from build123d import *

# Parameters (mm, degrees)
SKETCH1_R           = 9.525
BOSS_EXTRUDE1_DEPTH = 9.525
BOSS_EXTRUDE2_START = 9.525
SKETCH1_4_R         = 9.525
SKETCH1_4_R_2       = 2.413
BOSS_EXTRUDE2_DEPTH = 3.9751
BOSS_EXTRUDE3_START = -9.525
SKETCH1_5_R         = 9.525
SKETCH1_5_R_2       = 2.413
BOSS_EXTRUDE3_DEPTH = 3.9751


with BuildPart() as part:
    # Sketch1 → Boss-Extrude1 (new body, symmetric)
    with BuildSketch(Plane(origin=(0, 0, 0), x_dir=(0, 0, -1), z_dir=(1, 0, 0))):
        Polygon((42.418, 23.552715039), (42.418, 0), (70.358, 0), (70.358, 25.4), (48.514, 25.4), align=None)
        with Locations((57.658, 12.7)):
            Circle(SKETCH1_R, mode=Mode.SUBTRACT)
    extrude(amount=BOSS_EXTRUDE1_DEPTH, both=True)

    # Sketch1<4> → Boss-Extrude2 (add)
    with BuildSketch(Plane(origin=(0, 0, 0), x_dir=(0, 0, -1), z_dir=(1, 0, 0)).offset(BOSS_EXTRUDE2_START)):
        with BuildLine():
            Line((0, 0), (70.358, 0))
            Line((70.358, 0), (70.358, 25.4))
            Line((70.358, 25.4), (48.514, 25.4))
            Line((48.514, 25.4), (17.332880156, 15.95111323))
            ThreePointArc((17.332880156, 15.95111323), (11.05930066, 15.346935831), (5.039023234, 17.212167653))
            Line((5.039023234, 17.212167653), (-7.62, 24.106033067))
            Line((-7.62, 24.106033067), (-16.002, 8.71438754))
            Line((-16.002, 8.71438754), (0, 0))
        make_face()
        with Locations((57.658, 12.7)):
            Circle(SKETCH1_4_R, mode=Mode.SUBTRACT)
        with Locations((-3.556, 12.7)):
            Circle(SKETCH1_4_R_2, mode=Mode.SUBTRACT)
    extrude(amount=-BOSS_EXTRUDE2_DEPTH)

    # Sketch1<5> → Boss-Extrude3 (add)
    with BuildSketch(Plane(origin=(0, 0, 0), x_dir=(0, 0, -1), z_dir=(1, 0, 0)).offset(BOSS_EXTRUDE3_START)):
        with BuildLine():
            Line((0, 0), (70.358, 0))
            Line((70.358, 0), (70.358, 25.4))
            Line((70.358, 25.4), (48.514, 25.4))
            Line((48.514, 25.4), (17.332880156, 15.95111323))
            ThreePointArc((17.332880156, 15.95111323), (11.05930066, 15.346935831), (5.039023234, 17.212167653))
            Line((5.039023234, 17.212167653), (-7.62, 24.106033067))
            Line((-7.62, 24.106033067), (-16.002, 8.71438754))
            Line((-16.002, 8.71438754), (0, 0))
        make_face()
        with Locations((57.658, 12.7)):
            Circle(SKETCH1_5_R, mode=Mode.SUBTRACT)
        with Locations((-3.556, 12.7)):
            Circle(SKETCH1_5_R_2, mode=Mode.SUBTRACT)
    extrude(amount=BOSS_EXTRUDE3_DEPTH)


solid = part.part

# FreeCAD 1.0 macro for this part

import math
import FreeCAD as App
import Part
import Sketcher
Q = App.Units.Quantity


def add_polygon(sketch, points):
    """Adds a closed chain of lines whose ends are joined by coincident constraints."""
    first, n = sketch.GeometryCount, len(points)
    for a, b in zip(points, points[1:] + points[:1]):
        sketch.addGeometry(Part.LineSegment(App.Vector(*a, 0), App.Vector(*b, 0)), False)
    for i in range(n):
        sketch.addConstraint(Sketcher.Constraint("Coincident", first + i, 2, first + (i + 1) % n, 1))

doc = App.newDocument("Part")
body = doc.addObject("PartDesign::Body", "Body")

# Sketch on YZ plane
sketch1 = body.newObject("Sketcher::SketchObject", "Sketch")
sketch1.AttachmentSupport = (doc.getObject("YZ_Plane"), [""])
sketch1.MapMode = "FlatFace"
add_polygon(sketch1, [(24, -42), (0, -42), (0, -70), (25, -70), (25, -49)])  # lines 0-4
sketch1.addGeometry(Part.Circle(App.Vector(13, -58, 0), App.Vector(0, 0, 1), 10), False)  # 5
sketch1.addConstraint(Sketcher.Constraint("Horizontal", 0))
sketch1.addConstraint(Sketcher.Constraint("Vertical", 1))
sketch1.addConstraint(Sketcher.Constraint("Horizontal", 2))
sketch1.addConstraint(Sketcher.Constraint("Vertical", 3))
sketch1.addConstraint(Sketcher.Constraint("PointOnObject", 0, 2, -2))
sketch1.addConstraint(Sketcher.Constraint("Diameter", 5, Q("0.75 in")))
sketch1.addConstraint(Sketcher.Constraint("DistanceX", 2, 1, 2, 2, Q("1 in")))
sketch1.addConstraint(Sketcher.Constraint("DistanceY", 1, 2, 1, 1, Q("1.1 in")))
sketch1.addConstraint(Sketcher.Constraint("DistanceY", 3, 1, 3, 2, Q("0.86 in")))
sketch1.addConstraint(Sketcher.Constraint("DistanceX", -1, 1, 5, 3, Q("0.5 in")))
sketch1.addConstraint(Sketcher.Constraint("DistanceY", 5, 3, 0, 2, Q("0.6 in")))
sketch1.addConstraint(Sketcher.Constraint("DistanceY", 5, 3, -1, 1, Q("2.27 in")))
sketch1.addConstraint(Sketcher.Constraint("DistanceX", 0, 2, 0, 1, 23.552715))
pad1 = body.newObject("PartDesign::Pad", "Pad")
pad1.Profile = sketch1
pad1.Length = Q("0.75 in")
pad1.Midplane = True

# Sketch on YZ plane
sketch2 = body.newObject("Sketcher::SketchObject", "Sketch001")
sketch2.AttachmentSupport = (doc.getObject("YZ_Plane"), [""])
sketch2.MapMode = "FlatFace"
sketch2.AttachmentOffset = App.Placement(App.Vector(0, 0, 0.375 * 25.4), App.Rotation())
sketch2.addGeometry(Part.LineSegment(App.Vector(0, 0, 0), App.Vector(0, -70.4, 0)), False)
sketch2.addGeometry(Part.LineSegment(App.Vector(0, -70.4, 0), App.Vector(25.4, -70.4, 0)), False)
sketch2.addGeometry(Part.LineSegment(App.Vector(25.4, -70.4, 0), App.Vector(25.4, -48.5, 0)), False)
sketch2.addGeometry(Part.LineSegment(App.Vector(25.4, -48.5, 0), App.Vector(16, -17.3, 0)), False)
sketch2.addGeometry(Part.ArcOfCircle(Part.Circle(App.Vector(31.3, -12.7, 0), App.Vector(0, 0, 1), 16), math.radians(151), math.radians(197)), False)
sketch2.addGeometry(Part.LineSegment(App.Vector(17.2, -5, 0), App.Vector(24.1, 7.6, 0)), False)
sketch2.addGeometry(Part.LineSegment(App.Vector(24.1, 7.6, 0), App.Vector(8.7, 16, 0)), False)
sketch2.addGeometry(Part.LineSegment(App.Vector(8.7, 16, 0), App.Vector(0, 0, 0)), False)
sketch2.addGeometry(Part.Circle(App.Vector(12.7, 3.6, 0), App.Vector(0, 0, 1), 2.4), False)
sketch2.addGeometry(Part.Circle(App.Vector(12.7, -57.7, 0), App.Vector(0, 0, 1), 9.5), False)
sketch2.addConstraint(Sketcher.Constraint("Coincident", 0, 2, 1, 1))
sketch2.addConstraint(Sketcher.Constraint("Coincident", 1, 2, 2, 1))
sketch2.addConstraint(Sketcher.Constraint("Coincident", 2, 2, 3, 1))
sketch2.addConstraint(Sketcher.Constraint("Tangent", 3, 2, 4, 2))
sketch2.addConstraint(Sketcher.Constraint("Tangent", 4, 1, 5, 1))
sketch2.addConstraint(Sketcher.Constraint("Coincident", 5, 2, 6, 1))
sketch2.addConstraint(Sketcher.Constraint("Coincident", 6, 2, 7, 1))
sketch2.addConstraint(Sketcher.Constraint("Coincident", 7, 2, 0, 1))
sketch2.addConstraint(Sketcher.Constraint("Vertical", 0))
sketch2.addConstraint(Sketcher.Constraint("Horizontal", 1))
sketch2.addConstraint(Sketcher.Constraint("Vertical", 2))
sketch2.addConstraint(Sketcher.Constraint("Coincident", 7, 2, -1, 1))
sketch2.addConstraint(Sketcher.Constraint("Perpendicular", 5, 6))
sketch2.addConstraint(Sketcher.Constraint("Perpendicular", 6, 7))
sketch2.addConstraint(Sketcher.Constraint("Vertical", 8, 3, 9, 3))
sketch2.addConstraint(Sketcher.Constraint("Diameter", 8, Q("0.19 in")))
sketch2.addConstraint(Sketcher.Constraint("Diameter", 9, Q("0.75 in")))
sketch2.addConstraint(Sketcher.Constraint("DistanceX", 1, 1, 1, 2, Q("1 in")))
sketch2.addConstraint(Sketcher.Constraint("Radius", 4, Q("0.63 in")))
sketch2.addConstraint(Sketcher.Constraint("DistanceY", 0, 2, 0, 1, Q("2.77 in")))
sketch2.addConstraint(Sketcher.Constraint("DistanceY", 2, 1, 2, 2, Q("0.86 in")))
sketch2.addConstraint(Sketcher.Constraint("DistanceX", -1, 1, 8, 3, Q("0.5 in")))
sketch2.addConstraint(Sketcher.Constraint("DistanceY", -1, 1, 5, 2, Q("0.3 in")))
sketch2.addConstraint(Sketcher.Constraint("DistanceY", 0, 2, 9, 3, Q("0.5 in")))
sketch2.addConstraint(Sketcher.Constraint("Distance", 6, Q("0.69 in")))
sketch2.addConstraint(Sketcher.Constraint("DistanceY", -1, 1, 8, 3, Q("0.14 in")))
sketch2.addConstraint(Sketcher.Constraint("DistanceY", -1, 1, 6, 2, Q("0.63 in")))
sketch2.addConstraint(Sketcher.Constraint("Distance", 3, 32.58134))
pad2 = body.newObject("PartDesign::Pad", "Pad001")
pad2.Profile = sketch2
pad2.Length = Q("0.1565 in")
pad2.Reversed = True

# Sketch on YZ plane
sketch3 = body.newObject("Sketcher::SketchObject", "Sketch002")
sketch3.AttachmentSupport = (doc.getObject("YZ_Plane"), [""])
sketch3.MapMode = "FlatFace"
sketch3.AttachmentOffset = App.Placement(App.Vector(0, 0, -0.375 * 25.4), App.Rotation())
sketch3.addGeometry(Part.LineSegment(App.Vector(0, 0, 0), App.Vector(0, -70.4, 0)), False)
sketch3.addGeometry(Part.LineSegment(App.Vector(0, -70.4, 0), App.Vector(25.4, -70.4, 0)), False)
sketch3.addGeometry(Part.LineSegment(App.Vector(25.4, -70.4, 0), App.Vector(25.4, -48.5, 0)), False)
sketch3.addGeometry(Part.LineSegment(App.Vector(25.4, -48.5, 0), App.Vector(16, -17.3, 0)), False)
sketch3.addGeometry(Part.ArcOfCircle(Part.Circle(App.Vector(31.3, -12.7, 0), App.Vector(0, 0, 1), 16), math.radians(151), math.radians(197)), False)
sketch3.addGeometry(Part.LineSegment(App.Vector(17.2, -5, 0), App.Vector(24.1, 7.6, 0)), False)
sketch3.addGeometry(Part.LineSegment(App.Vector(24.1, 7.6, 0), App.Vector(8.7, 16, 0)), False)
sketch3.addGeometry(Part.LineSegment(App.Vector(8.7, 16, 0), App.Vector(0, 0, 0)), False)
sketch3.addGeometry(Part.Circle(App.Vector(12.7, 3.6, 0), App.Vector(0, 0, 1), 2.4), False)
sketch3.addGeometry(Part.Circle(App.Vector(12.7, -57.7, 0), App.Vector(0, 0, 1), 9.5), False)
sketch3.addConstraint(Sketcher.Constraint("Coincident", 0, 2, 1, 1))
sketch3.addConstraint(Sketcher.Constraint("Coincident", 1, 2, 2, 1))
sketch3.addConstraint(Sketcher.Constraint("Coincident", 2, 2, 3, 1))
sketch3.addConstraint(Sketcher.Constraint("Tangent", 3, 2, 4, 2))
sketch3.addConstraint(Sketcher.Constraint("Tangent", 4, 1, 5, 1))
sketch3.addConstraint(Sketcher.Constraint("Coincident", 5, 2, 6, 1))
sketch3.addConstraint(Sketcher.Constraint("Coincident", 6, 2, 7, 1))
sketch3.addConstraint(Sketcher.Constraint("Coincident", 7, 2, 0, 1))
sketch3.addConstraint(Sketcher.Constraint("Vertical", 0))
sketch3.addConstraint(Sketcher.Constraint("Horizontal", 1))
sketch3.addConstraint(Sketcher.Constraint("Vertical", 2))
sketch3.addConstraint(Sketcher.Constraint("Coincident", 7, 2, -1, 1))
sketch3.addConstraint(Sketcher.Constraint("Perpendicular", 5, 6))
sketch3.addConstraint(Sketcher.Constraint("Perpendicular", 6, 7))
sketch3.addConstraint(Sketcher.Constraint("Vertical", 8, 3, 9, 3))
sketch3.addConstraint(Sketcher.Constraint("Diameter", 8, Q("0.19 in")))
sketch3.addConstraint(Sketcher.Constraint("Diameter", 9, Q("0.75 in")))
sketch3.addConstraint(Sketcher.Constraint("DistanceX", 1, 1, 1, 2, Q("1 in")))
sketch3.addConstraint(Sketcher.Constraint("Radius", 4, Q("0.63 in")))
sketch3.addConstraint(Sketcher.Constraint("DistanceY", 0, 2, 0, 1, Q("2.77 in")))
sketch3.addConstraint(Sketcher.Constraint("DistanceY", 2, 1, 2, 2, Q("0.86 in")))
sketch3.addConstraint(Sketcher.Constraint("DistanceX", -1, 1, 8, 3, Q("0.5 in")))
sketch3.addConstraint(Sketcher.Constraint("DistanceY", -1, 1, 5, 2, Q("0.3 in")))
sketch3.addConstraint(Sketcher.Constraint("DistanceY", 0, 2, 9, 3, Q("0.5 in")))
sketch3.addConstraint(Sketcher.Constraint("Distance", 6, Q("0.69 in")))
sketch3.addConstraint(Sketcher.Constraint("DistanceY", -1, 1, 8, 3, Q("0.14 in")))
sketch3.addConstraint(Sketcher.Constraint("DistanceY", -1, 1, 6, 2, Q("0.63 in")))
sketch3.addConstraint(Sketcher.Constraint("Distance", 3, 32.58134))
pad3 = body.newObject("PartDesign::Pad", "Pad002")
pad3.Profile = sketch3
pad3.Length = Q("0.1565 in")

doc.recompute()
